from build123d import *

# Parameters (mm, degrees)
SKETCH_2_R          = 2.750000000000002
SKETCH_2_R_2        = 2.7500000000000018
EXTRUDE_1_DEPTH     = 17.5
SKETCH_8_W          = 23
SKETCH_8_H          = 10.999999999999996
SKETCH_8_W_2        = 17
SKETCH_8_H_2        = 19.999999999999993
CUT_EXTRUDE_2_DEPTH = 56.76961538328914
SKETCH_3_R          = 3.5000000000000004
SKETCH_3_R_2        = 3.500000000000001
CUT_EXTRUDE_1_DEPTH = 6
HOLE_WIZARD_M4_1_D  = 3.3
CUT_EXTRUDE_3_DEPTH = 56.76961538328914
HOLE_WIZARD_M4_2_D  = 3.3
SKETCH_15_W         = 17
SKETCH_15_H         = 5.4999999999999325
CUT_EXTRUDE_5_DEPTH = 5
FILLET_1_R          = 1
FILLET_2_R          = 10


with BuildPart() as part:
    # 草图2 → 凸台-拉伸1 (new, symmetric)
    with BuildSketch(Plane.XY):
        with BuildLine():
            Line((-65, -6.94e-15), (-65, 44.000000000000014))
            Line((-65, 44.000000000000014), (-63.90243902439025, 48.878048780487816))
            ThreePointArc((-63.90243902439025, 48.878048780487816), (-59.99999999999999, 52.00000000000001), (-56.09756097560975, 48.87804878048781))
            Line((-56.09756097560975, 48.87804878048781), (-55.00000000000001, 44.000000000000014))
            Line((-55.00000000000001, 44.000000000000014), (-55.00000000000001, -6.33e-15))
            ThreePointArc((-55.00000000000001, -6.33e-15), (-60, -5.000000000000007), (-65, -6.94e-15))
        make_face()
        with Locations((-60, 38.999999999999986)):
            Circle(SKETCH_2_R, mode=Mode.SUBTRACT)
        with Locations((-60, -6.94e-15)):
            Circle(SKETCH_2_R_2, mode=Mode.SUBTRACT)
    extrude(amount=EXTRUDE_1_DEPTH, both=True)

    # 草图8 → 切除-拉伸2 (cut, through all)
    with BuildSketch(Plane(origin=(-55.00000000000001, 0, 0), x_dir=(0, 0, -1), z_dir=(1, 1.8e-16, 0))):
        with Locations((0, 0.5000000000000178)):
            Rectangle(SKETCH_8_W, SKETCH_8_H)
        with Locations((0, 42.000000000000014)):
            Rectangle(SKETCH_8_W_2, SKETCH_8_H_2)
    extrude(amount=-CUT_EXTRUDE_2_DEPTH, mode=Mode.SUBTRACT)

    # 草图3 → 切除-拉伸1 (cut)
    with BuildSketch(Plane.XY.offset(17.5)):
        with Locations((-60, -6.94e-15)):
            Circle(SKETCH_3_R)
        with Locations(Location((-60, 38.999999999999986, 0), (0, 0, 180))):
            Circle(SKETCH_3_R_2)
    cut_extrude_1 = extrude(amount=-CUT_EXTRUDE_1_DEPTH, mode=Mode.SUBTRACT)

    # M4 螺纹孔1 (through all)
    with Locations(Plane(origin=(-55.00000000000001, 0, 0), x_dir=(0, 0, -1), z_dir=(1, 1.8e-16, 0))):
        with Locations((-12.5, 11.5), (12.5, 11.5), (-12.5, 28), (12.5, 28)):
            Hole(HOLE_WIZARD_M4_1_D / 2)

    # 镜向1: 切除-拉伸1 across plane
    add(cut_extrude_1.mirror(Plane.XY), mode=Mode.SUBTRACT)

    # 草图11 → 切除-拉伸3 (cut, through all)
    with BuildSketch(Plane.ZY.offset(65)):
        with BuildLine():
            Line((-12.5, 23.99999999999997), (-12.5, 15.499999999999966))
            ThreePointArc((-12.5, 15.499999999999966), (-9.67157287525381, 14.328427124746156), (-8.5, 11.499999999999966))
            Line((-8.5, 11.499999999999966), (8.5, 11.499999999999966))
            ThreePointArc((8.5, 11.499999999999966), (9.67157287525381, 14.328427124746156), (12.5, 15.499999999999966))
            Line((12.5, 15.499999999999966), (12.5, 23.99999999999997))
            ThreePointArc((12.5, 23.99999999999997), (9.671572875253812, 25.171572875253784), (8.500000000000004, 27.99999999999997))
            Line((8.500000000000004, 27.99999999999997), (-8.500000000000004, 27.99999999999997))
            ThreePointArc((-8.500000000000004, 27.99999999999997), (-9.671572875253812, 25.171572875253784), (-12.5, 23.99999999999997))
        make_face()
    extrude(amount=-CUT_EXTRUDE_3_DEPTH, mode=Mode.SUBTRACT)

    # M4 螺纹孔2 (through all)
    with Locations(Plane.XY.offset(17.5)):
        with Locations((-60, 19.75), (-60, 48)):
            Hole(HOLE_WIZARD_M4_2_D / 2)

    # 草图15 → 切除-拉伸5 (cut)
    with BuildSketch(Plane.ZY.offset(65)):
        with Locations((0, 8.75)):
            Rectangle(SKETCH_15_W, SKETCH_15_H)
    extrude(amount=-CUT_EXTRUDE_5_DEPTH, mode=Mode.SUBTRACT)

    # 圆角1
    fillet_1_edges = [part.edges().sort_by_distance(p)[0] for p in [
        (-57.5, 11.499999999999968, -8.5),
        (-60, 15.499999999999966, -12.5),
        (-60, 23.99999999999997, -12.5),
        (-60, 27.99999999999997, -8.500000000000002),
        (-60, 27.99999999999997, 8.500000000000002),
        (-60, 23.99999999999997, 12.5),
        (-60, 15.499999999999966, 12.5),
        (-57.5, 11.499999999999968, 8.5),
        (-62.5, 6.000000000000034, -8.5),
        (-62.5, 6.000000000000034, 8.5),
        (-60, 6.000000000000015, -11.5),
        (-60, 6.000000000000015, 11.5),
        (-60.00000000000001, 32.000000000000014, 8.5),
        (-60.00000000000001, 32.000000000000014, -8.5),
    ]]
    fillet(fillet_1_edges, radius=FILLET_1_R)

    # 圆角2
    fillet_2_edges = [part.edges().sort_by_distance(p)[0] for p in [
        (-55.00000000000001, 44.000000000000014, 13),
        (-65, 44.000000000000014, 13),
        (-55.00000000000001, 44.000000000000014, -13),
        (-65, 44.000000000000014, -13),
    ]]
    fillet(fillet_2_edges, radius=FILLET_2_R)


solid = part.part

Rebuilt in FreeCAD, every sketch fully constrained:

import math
import FreeCAD as App
import Part
import Sketcher


def edges_at(feature, points):
    """Names of the edges that pass closest to the given points."""
    edges = feature.Shape.Edges
    near = lambda p: min(range(len(edges)), key=lambda i: edges[i].distToShape(Part.Vertex(*p))[0])
    return sorted({f"Edge{near(p) + 1}" for p in points})

doc = App.newDocument("Part")
body = doc.addObject("PartDesign::Body", "Body")

sketch1 = body.newObject("Sketcher::SketchObject", "Sketch")
sketch1.AttachmentSupport = (doc.getObject("XY_Plane"), [""])
sketch1.MapMode = "FlatFace"
sketch1.addGeometry([
    Part.LineSegment(App.Vector(-65, 44, 0), App.Vector(-65, 0, 0)),
    Part.ArcOfCircle(Part.Circle(App.Vector(-60, 0, 0), App.Vector(0, 0, 1), 5), math.radians(180), math.radians(360)),
    Part.LineSegment(App.Vector(-55, 0, 0), App.Vector(-55, 44, 0)),
    Part.LineSegment(App.Vector(-55, 44, 0), App.Vector(-56.1, 48.9, 0)),
    Part.ArcOfCircle(Part.Circle(App.Vector(-60, 48, 0), App.Vector(0, 0, 1), 4), math.radians(13), math.radians(167)),
    Part.LineSegment(App.Vector(-63.9, 48.9, 0), App.Vector(-65, 44, 0)),
    Part.Circle(App.Vector(-60, 0, 0), App.Vector(0, 0, 1), 2.8),
    Part.Circle(App.Vector(-60, 39, 0), App.Vector(0, 0, 1), 2.8),
], False)
sketch1.addConstraint([
    Sketcher.Constraint("Tangent", 0, 2, 1, 1),
    Sketcher.Constraint("Tangent", 1, 2, 2, 1),
    Sketcher.Constraint("Coincident", 2, 2, 3, 1),
    Sketcher.Constraint("Tangent", 3, 2, 4, 1),
    Sketcher.Constraint("Tangent", 4, 2, 5, 1),
    Sketcher.Constraint("Coincident", 5, 2, 0, 1),
    Sketcher.Constraint("Vertical", 0),
    Sketcher.Constraint("Vertical", 2),
    Sketcher.Constraint("Coincident", 6, 3, 1, 3),
    Sketcher.Constraint("Equal", 6, 7),
    Sketcher.Constraint("PointOnObject", 1, 3, -1),
    Sketcher.Constraint("Horizontal", 3, 2, 4, 2),
    Sketcher.Constraint("Horizontal", 2, 2, 5, 2),
    Sketcher.Constraint("Vertical", 6, 3, 7, 3),
    Sketcher.Constraint("Radius", 1, 5.0),
    Sketcher.Constraint("Radius", 4, 4.0),
    Sketcher.Constraint("Diameter", 6, 5.5),
    Sketcher.Constraint("DistanceY", 0, 2, 0, 1, 44.0),
    Sketcher.Constraint("Distance", 3, 5.0),
    Sketcher.Constraint("DistanceX", 1, 3, -1, 1, 60.0),
    Sketcher.Constraint("DistanceY", -1, 1, 7, 3, 39.0),
])
pad1 = body.newObject("PartDesign::Pad", "Pad")
pad1.Profile = sketch1
pad1.Length = 35
pad1.Midplane = True

sketch2 = body.newObject("Sketcher::SketchObject", "Sketch001")
sketch2.AttachmentSupport = (doc.getObject("YZ_Plane"), [""])
sketch2.MapMode = "FlatFace"
sketch2.AttachmentOffset = App.Placement(App.Vector(0, 0, -55), App.Rotation())
sketch2.addGeometry([
    Part.LineSegment(App.Vector(6, 12, 0), App.Vector(-5, 12, 0)),
    Part.LineSegment(App.Vector(-5, 12, 0), App.Vector(-5, -12, 0)),
    Part.LineSegment(App.Vector(-5, -12, 0), App.Vector(6, -12, 0)),
    Part.LineSegment(App.Vector(6, -12, 0), App.Vector(6, 12, 0)),
    Part.LineSegment(App.Vector(52, 8, 0), App.Vector(32, 8, 0)),
    Part.LineSegment(App.Vector(32, 8, 0), App.Vector(32, -8, 0)),
    Part.LineSegment(App.Vector(32, -8, 0), App.Vector(52, -8, 0)),
    Part.LineSegment(App.Vector(52, -8, 0), App.Vector(52, 8, 0)),
], False)
sketch2.addConstraint([
    Sketcher.Constraint("Coincident", 0, 2, 1, 1),
    Sketcher.Constraint("Coincident", 1, 2, 2, 1),
    Sketcher.Constraint("Coincident", 2, 2, 3, 1),
    Sketcher.Constraint("Coincident", 3, 2, 0, 1),
    Sketcher.Constraint("Coincident", 4, 2, 5, 1),
    Sketcher.Constraint("Coincident", 5, 2, 6, 1),
    Sketcher.Constraint("Coincident", 6, 2, 7, 1),
    Sketcher.Constraint("Coincident", 7, 2, 4, 1),
    Sketcher.Constraint("Horizontal", 0),
    Sketcher.Constraint("Vertical", 1),
    Sketcher.Constraint("Horizontal", 2),
    Sketcher.Constraint("Vertical", 3),
    Sketcher.Constraint("Horizontal", 4),
    Sketcher.Constraint("Vertical", 5),
    Sketcher.Constraint("Horizontal", 6),
    Sketcher.Constraint("Vertical", 7),
    Sketcher.Constraint("DistanceX", 0, 2, 0, 1, 11.0),
    Sketcher.Constraint("DistanceX", 4, 2, 4, 1, 20.0),
    Sketcher.Constraint("DistanceY", 1, 2, 1, 1, 23.0),
    Sketcher.Constraint("DistanceY", 5, 2, 5, 1, 17.0),
    Sketcher.Constraint("DistanceX", 0, 2, -1, 1, 5.0),
    Sketcher.Constraint("DistanceX", -1, 1, 4, 2, 32.0),
    Sketcher.Constraint("DistanceY", 4, 2, 3, 2, 3.0),
    Sketcher.Constraint("DistanceY", -1, 1, 0, 2, 11.5),
])
pocket1 = body.newObject("PartDesign::Pocket", "Pocket")
pocket1.Profile = sketch2
pocket1.Type = "ThroughAll"

sketch3 = body.newObject("Sketcher::SketchObject", "Sketch002")
sketch3.AttachmentSupport = (doc.getObject("XY_Plane"), [""])
sketch3.MapMode = "FlatFace"
sketch3.AttachmentOffset = App.Placement(App.Vector(0, 0, 17.5), App.Rotation())
sketch3.addGeometry([
    Part.Circle(App.Vector(-60, 0, 0), App.Vector(0, 0, 1), 3.5),
    Part.Circle(App.Vector(-60, 39, 0), App.Vector(0, 0, 1), 3.5),
], False)
sketch3.addConstraint([
    Sketcher.Constraint("Equal", 0, 1),
    Sketcher.Constraint("PointOnObject", 0, 3, -1),
    Sketcher.Constraint("Vertical", 0, 3, 1, 3),
    Sketcher.Constraint("Diameter", 0, 7.0),
    Sketcher.Constraint("DistanceX", 0, 3, -1, 1, 60.0),
    Sketcher.Constraint("DistanceY", -1, 1, 1, 3, 39.0),
])
pocket2 = body.newObject("PartDesign::Pocket", "Pocket001")
pocket2.Profile = sketch3
pocket2.Length = 6

sketch4 = body.newObject("Sketcher::SketchObject", "Sketch003")
sketch4.AttachmentSupport = (doc.getObject("YZ_Plane"), [""])
sketch4.MapMode = "FlatFace"
sketch4.AttachmentOffset = App.Placement(App.Vector(0, 0, -55), App.Rotation())
sketch4.addGeometry([
    Part.Circle(App.Vector(11.5, 12.5, 0), App.Vector(0, 0, 1), 1.6),
    Part.Circle(App.Vector(11.5, -12.5, 0), App.Vector(0, 0, 1), 1.6),
    Part.Circle(App.Vector(28, 12.5, 0), App.Vector(0, 0, 1), 1.6),
    Part.Circle(App.Vector(28, -12.5, 0), App.Vector(0, 0, 1), 1.6),
], False)
sketch4.addConstraint([
    Sketcher.Constraint("Equal", 0, 1),
    Sketcher.Constraint("Equal", 1, 2),
    Sketcher.Constraint("Equal", 2, 3),
    Sketcher.Constraint("Symmetric", 0, 3, 1, 3, -1),
    Sketcher.Constraint("Symmetric", 2, 3, 3, 3, -1),
    Sketcher.Constraint("Horizontal", 0, 3, 2, 3),
    Sketcher.Constraint("Diameter", 0, 3.3),
    Sketcher.Constraint("DistanceX", -1, 1, 2, 3, 28.0),
    Sketcher.Constraint("DistanceY", 1, 3, 0, 3, 25.0),
    Sketcher.Constraint("DistanceX", -1, 1, 0, 3, 11.5),
])
doc.recompute()
hole = body.newObject("PartDesign::Hole", "Hole")
hole.Profile = sketch4
hole.ThreadType = "None"
hole.Diameter = 3.3
hole.DepthType = "ThroughAll"
doc.recompute()

mirrored = body.newObject("PartDesign::Mirrored", "Mirrored")
mirrored.Originals = [pocket2]
mirrored.MirrorPlane = (doc.getObject("XY_Plane"), [""])
body.Tip = mirrored

sketch5 = body.newObject("Sketcher::SketchObject", "Sketch004")
sketch5.AttachmentSupport = (doc.getObject("YZ_Plane"), [""])
sketch5.MapMode = "FlatFace"
sketch5.AttachmentOffset = App.Placement(App.Vector(0, 0, -65), App.Rotation())
sketch5.addGeometry([
    Part.LineSegment(App.Vector(24, -12.5, 0), App.Vector(15.5, -12.5, 0)),
    Part.ArcOfCircle(Part.Circle(App.Vector(11.5, -12.5, 0), App.Vector(0, 0, 1), 4), math.radians(0), math.radians(90)),
    Part.LineSegment(App.Vector(11.5, -8.5, 0), App.Vector(11.5, 8.5, 0)),
    Part.ArcOfCircle(Part.Circle(App.Vector(11.5, 12.5, 0), App.Vector(0, 0, 1), 4), math.radians(-90), math.radians(0)),
    Part.LineSegment(App.Vector(15.5, 12.5, 0), App.Vector(24, 12.5, 0)),
    Part.ArcOfCircle(Part.Circle(App.Vector(28, 12.5, 0), App.Vector(0, 0, 1), 4), math.radians(180), math.radians(270)),
    Part.LineSegment(App.Vector(28, 8.5, 0), App.Vector(28, -8.5, 0)),
    Part.ArcOfCircle(Part.Circle(App.Vector(28, -12.5, 0), App.Vector(0, 0, 1), 4), math.radians(90), math.radians(180)),
], False)
sketch5.addConstraint([
    Sketcher.Constraint("Coincident", 0, 2, 1, 1),
    Sketcher.Constraint("Coincident", 1, 2, 2, 1),
    Sketcher.Constraint("Coincident", 2, 2, 3, 1),
    Sketcher.Constraint("Coincident", 3, 2, 4, 1),
    Sketcher.Constraint("Coincident", 4, 2, 5, 1),
    Sketcher.Constraint("Coincident", 5, 2, 6, 1),
    Sketcher.Constraint("Coincident", 6, 2, 7, 1),
    Sketcher.Constraint("Coincident", 7, 2, 0, 1),
    Sketcher.Constraint("Horizontal", 0),
    Sketcher.Constraint("Vertical", 2),
    Sketcher.Constraint("Horizontal", 4),
    Sketcher.Constraint("Vertical", 6),
    Sketcher.Constraint("Equal", 1, 3),
    Sketcher.Constraint("Equal", 3, 5),
    Sketcher.Constraint("Equal", 5, 7),
    Sketcher.Constraint("Symmetric", 1, 3, 3, 3, -1),
    Sketcher.Constraint("Symmetric", 5, 3, 7, 3, -1),
    Sketcher.Constraint("Horizontal", 3, 3, 5, 3),
    Sketcher.Constraint("Horizontal", 7, 3, 0, 2),
    Sketcher.Constraint("Horizontal", 5, 3, 3, 2),
    Sketcher.Constraint("Vertical", 3, 3, 1, 2),
    Sketcher.Constraint("Vertical", 7, 3, 5, 2),
    Sketcher.Constraint("Radius", 1, 4.0),
    Sketcher.Constraint("DistanceY", 2, 1, 2, 2, 17.0),
    Sketcher.Constraint("DistanceX", 0, 2, 0, 1, 8.5),
    Sketcher.Constraint("DistanceX", -1, 1, 5, 3, 28.0),
])
pocket3 = body.newObject("PartDesign::Pocket", "Pocket002")
pocket3.Profile = sketch5
pocket3.Type = "ThroughAll"
pocket3.Reversed = True

sketch6 = body.newObject("Sketcher::SketchObject", "Sketch005")
sketch6.AttachmentSupport = (doc.getObject("XY_Plane"), [""])
sketch6.MapMode = "FlatFace"
sketch6.AttachmentOffset = App.Placement(App.Vector(0, 0, 17.5), App.Rotation())
sketch6.addGeometry([
    Part.Circle(App.Vector(-60, 19.8, 0), App.Vector(0, 0, 1), 1.6),
    Part.Circle(App.Vector(-60, 48, 0), App.Vector(0, 0, 1), 1.6),
], False)
sketch6.addConstraint([
    Sketcher.Constraint("Equal", 0, 1),
    Sketcher.Constraint("Vertical", 0, 3, 1, 3),
    Sketcher.Constraint("Diameter", 0, 3.3),
    Sketcher.Constraint("DistanceX", 0, 3, -1, 1, 60.0),
    Sketcher.Constraint("DistanceY", -1, 1, 1, 3, 48.0),
    Sketcher.Constraint("DistanceY", -1, 1, 0, 3, 19.75),
])
doc.recompute()
hole2 = body.newObject("PartDesign::Hole", "Hole001")
hole2.Profile = sketch6
hole2.ThreadType = "None"
hole2.Diameter = 3.3
hole2.DepthType = "ThroughAll"

sketch7 = body.newObject("Sketcher::SketchObject", "Sketch006")
sketch7.AttachmentSupport = (doc.getObject("YZ_Plane"), [""])
sketch7.MapMode = "FlatFace"
sketch7.AttachmentOffset = App.Placement(App.Vector(0, 0, -65), App.Rotation())
sketch7.addGeometry([
    Part.LineSegment(App.Vector(12, -8, 0), App.Vector(6, -8, 0)),
    Part.LineSegment(App.Vector(6, -8, 0), App.Vector(6, 8, 0)),
    Part.LineSegment(App.Vector(6, 8, 0), App.Vector(12, 8, 0)),
    Part.LineSegment(App.Vector(12, 8, 0), App.Vector(12, -8, 0)),
], False)
sketch7.addConstraint([
    Sketcher.Constraint("Coincident", 0, 2, 1, 1),
    Sketcher.Constraint("Coincident", 1, 2, 2, 1),
    Sketcher.Constraint("Coincident", 2, 2, 3, 1),
    Sketcher.Constraint("Coincident", 3, 2, 0, 1),
    Sketcher.Constraint("Horizontal", 0),
    Sketcher.Constraint("Vertical", 1),
    Sketcher.Constraint("Horizontal", 2),
    Sketcher.Constraint("Vertical", 3),
    Sketcher.Constraint("DistanceY", 1, 1, 1, 2, 17.0),
    Sketcher.Constraint("DistanceX", 0, 2, 0, 1, 5.5),
    Sketcher.Constraint("DistanceX", -1, 1, 0, 2, 6.0),
    Sketcher.Constraint("DistanceY", 0, 2, -1, 1, 8.5),
])
pocket4 = body.newObject("PartDesign::Pocket", "Pocket003")
pocket4.Profile = sketch7
pocket4.Length = 5
pocket4.Reversed = True
doc.recompute()

fillet = body.newObject("PartDesign::Fillet", "Fillet")
fillet.Base = (pocket4, edges_at(pocket4, [
    (-57.5, 11.5, -8.5),
    (-60, 15.5, -12.5),
    (-60, 24, -12.5),
    (-60, 28, -8.5),
    (-60, 28, 8.5),
    (-60, 24, 12.5),
    (-60, 15.5, 12.5),
    (-57.5, 11.5, 8.5),
    (-62.5, 6, -8.5),
    (-62.5, 6, 8.5),
    (-60, 6, -11.5),
    (-60, 6, 11.5),
    (-60, 32, 8.5),
    (-60, 32, -8.5),
]))
fillet.Radius = 1
doc.recompute()

fillet2 = body.newObject("PartDesign::Fillet", "Fillet001")
fillet2.Base = (fillet, edges_at(fillet, [
    (-55, 44, 13),
    (-65, 44, 13),
    (-55, 44, -13),
    (-65, 44, -13),
]))
fillet2.Radius = 10

doc.recompute()
